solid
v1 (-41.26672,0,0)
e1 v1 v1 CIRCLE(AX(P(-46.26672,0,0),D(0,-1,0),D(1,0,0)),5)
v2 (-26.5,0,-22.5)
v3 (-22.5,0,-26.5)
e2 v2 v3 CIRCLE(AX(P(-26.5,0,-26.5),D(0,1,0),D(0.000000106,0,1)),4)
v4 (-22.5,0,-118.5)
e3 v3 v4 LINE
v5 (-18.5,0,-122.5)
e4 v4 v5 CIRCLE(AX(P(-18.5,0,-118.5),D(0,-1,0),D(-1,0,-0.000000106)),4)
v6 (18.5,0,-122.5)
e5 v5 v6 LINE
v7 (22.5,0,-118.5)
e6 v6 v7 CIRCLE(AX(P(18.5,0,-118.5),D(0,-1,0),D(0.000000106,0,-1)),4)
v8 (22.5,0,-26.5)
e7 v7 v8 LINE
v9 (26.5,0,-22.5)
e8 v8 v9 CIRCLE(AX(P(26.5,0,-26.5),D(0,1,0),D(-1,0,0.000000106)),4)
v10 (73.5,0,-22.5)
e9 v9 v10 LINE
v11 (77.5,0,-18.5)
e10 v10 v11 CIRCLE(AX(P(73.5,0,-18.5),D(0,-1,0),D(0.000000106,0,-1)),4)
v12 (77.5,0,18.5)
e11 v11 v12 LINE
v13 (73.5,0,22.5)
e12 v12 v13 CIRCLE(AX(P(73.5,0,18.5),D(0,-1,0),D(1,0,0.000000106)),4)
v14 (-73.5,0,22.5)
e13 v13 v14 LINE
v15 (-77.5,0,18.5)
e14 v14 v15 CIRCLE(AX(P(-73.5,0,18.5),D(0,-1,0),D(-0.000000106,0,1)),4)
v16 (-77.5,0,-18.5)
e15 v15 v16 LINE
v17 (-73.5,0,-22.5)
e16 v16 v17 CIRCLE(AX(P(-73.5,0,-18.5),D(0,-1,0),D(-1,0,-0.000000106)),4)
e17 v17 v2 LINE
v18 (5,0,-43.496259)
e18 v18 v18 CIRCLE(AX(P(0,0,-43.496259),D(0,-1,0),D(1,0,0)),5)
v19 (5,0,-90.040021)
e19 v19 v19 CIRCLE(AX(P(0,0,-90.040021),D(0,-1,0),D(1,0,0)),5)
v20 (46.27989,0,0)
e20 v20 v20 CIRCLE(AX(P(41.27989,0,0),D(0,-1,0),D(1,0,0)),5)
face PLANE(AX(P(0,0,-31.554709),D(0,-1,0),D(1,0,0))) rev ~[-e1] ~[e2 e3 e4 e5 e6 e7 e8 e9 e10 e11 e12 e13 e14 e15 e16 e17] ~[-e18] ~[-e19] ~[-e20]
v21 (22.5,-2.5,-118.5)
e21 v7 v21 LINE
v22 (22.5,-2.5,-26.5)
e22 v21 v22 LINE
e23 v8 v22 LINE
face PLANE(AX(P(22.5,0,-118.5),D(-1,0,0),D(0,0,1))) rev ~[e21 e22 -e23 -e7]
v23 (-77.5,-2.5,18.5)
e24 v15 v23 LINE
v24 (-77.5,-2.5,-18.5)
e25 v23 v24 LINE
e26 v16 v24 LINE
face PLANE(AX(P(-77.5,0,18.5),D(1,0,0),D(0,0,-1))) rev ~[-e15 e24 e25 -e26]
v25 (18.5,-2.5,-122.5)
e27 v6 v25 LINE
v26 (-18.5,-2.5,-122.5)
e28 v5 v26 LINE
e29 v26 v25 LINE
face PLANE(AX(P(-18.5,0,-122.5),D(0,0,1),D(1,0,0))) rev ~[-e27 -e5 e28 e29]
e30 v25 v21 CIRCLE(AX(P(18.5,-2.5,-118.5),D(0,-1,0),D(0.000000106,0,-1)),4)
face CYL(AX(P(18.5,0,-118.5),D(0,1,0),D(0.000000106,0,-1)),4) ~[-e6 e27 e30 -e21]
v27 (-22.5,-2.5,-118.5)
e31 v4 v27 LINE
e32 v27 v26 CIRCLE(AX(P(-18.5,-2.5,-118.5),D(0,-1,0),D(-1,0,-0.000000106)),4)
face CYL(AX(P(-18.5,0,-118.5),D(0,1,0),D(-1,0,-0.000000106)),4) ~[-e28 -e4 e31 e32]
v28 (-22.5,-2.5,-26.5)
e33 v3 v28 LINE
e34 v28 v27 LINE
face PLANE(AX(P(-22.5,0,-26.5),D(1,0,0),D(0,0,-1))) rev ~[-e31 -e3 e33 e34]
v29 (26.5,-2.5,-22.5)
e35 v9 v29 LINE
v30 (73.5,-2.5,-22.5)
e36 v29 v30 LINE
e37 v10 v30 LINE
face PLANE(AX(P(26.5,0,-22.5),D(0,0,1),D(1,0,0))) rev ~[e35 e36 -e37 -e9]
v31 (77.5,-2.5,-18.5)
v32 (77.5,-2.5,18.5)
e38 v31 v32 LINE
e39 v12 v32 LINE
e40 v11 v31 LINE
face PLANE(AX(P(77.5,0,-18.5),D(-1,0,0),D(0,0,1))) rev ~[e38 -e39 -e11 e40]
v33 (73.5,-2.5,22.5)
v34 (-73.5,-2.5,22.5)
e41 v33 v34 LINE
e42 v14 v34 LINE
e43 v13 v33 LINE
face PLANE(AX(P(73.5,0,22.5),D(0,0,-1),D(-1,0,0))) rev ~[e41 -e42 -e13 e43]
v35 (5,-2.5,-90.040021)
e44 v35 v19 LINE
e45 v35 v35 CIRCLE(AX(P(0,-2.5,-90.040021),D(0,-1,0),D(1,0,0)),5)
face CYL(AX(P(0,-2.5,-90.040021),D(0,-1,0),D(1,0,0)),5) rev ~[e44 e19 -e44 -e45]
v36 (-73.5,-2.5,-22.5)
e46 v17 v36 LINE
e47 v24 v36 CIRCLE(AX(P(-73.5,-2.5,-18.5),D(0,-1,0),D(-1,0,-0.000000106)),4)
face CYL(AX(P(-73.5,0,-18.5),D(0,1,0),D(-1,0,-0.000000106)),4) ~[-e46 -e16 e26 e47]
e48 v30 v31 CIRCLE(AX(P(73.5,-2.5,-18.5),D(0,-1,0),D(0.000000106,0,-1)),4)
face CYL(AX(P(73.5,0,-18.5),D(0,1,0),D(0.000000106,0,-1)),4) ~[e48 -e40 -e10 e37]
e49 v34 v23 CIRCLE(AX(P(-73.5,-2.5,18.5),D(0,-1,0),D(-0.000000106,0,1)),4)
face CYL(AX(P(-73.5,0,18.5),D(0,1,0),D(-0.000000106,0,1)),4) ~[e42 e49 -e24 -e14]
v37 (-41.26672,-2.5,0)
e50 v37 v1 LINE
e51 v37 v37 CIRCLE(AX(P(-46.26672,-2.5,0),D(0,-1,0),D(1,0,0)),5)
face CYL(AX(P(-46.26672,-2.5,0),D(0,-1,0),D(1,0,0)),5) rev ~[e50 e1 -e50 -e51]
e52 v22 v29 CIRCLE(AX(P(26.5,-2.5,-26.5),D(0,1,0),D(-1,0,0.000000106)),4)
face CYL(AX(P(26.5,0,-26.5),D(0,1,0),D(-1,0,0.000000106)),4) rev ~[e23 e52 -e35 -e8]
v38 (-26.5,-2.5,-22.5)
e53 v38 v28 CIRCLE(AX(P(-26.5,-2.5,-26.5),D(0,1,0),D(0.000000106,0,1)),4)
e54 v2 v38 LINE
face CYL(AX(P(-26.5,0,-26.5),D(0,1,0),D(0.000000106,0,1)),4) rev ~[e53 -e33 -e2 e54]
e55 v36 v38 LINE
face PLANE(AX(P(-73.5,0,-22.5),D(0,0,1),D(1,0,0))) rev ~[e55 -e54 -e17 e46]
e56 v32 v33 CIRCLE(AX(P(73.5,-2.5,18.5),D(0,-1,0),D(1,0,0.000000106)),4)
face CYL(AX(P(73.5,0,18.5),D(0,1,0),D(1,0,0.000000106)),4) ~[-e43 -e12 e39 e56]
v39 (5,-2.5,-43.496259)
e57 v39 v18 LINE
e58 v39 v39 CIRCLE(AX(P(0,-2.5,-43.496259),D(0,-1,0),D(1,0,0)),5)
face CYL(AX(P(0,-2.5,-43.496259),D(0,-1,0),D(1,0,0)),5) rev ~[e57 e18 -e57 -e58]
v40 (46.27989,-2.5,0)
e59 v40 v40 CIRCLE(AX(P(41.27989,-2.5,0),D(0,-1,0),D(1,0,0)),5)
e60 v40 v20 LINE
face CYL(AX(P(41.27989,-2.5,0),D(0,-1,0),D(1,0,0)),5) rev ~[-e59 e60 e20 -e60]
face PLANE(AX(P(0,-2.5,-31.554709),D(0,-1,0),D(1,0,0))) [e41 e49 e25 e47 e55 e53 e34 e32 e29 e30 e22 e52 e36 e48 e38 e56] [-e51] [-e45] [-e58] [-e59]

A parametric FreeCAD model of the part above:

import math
import FreeCAD as App
import Part
import Sketcher

V = App.Vector
Q = App.Units.Quantity

doc = App.newDocument("Part")
params = doc.addObject("Spreadsheet::Sheet", "Params")
for row, (alias, value) in enumerate([
    ("sketch1_radius", "4 mm"),
    ("sketch1_width", "147 mm"),
    ("sketch1_width2", "47 mm"),
    ("sketch1_height", "92 mm"),
    ("pad1_length", "2.5 mm"),
    ("sketch2_diameter", "10 mm"),
], start=1):
    params.set(f"A{row}", alias)
    params.set(f"B{row}", "=" + value)
    params.setAlias(f"B{row}", alias)

body = doc.addObject("PartDesign::Body", "Body")

sketch1 = body.newObject("Sketcher::SketchObject", "Sketch")
sketch1.AttachmentSupport = (doc.getObject("XZ_Plane"), [""])
sketch1.MapMode = "FlatFace"
sketch1.addGeometry([
    Part.ArcOfCircle(Part.Circle(V(73.5, 18.5, 0), V(0, 0, 1), 4), math.radians(0), math.radians(90)),
    Part.LineSegment(V(73.5, 22.5, 0), V(-73.5, 22.5, 0)),
    Part.ArcOfCircle(Part.Circle(V(-73.5, 18.5, 0), V(0, 0, 1), 4), math.radians(90), math.radians(180)),
    Part.LineSegment(V(-77.5, 18.5, 0), V(-77.5, -18.5, 0)),
    Part.ArcOfCircle(Part.Circle(V(-73.5, -18.5, 0), V(0, 0, 1), 4), math.radians(-180), math.radians(-90)),
    Part.LineSegment(V(-73.5, -22.5, 0), V(-26.5, -22.5, 0)),
    Part.ArcOfCircle(Part.Circle(V(-26.5, -26.5, 0), V(0, 0, 1), 4), math.radians(0), math.radians(90)),
    Part.LineSegment(V(-22.5, -26.5, 0), V(-22.5, -118.5, 0)),
    Part.ArcOfCircle(Part.Circle(V(-18.5, -118.5, 0), V(0, 0, 1), 4), math.radians(-180), math.radians(-90)),
    Part.LineSegment(V(-18.5, -122.5, 0), V(18.5, -122.5, 0)),
    Part.ArcOfCircle(Part.Circle(V(18.5, -118.5, 0), V(0, 0, 1), 4), math.radians(-90), math.radians(0)),
    Part.LineSegment(V(22.5, -118.5, 0), V(22.5, -26.5, 0)),
    Part.ArcOfCircle(Part.Circle(V(26.5, -26.5, 0), V(0, 0, 1), 4), math.radians(90), math.radians(180)),
    Part.LineSegment(V(26.5, -22.5, 0), V(73.5, -22.5, 0)),
    Part.ArcOfCircle(Part.Circle(V(73.5, -18.5, 0), V(0, 0, 1), 4), math.radians(-90), math.radians(0)),
    Part.LineSegment(V(77.5, -18.5, 0), V(77.5, 18.5, 0)),
], False)
sketch1.addConstraint([
    Sketcher.Constraint("Tangent", 0, 2, 1, 1),
    Sketcher.Constraint("Tangent", 1, 2, 2, 1),
    Sketcher.Constraint("Tangent", 2, 2, 3, 1),
    Sketcher.Constraint("Tangent", 3, 2, 4, 1),
    Sketcher.Constraint("Tangent", 4, 2, 5, 1),
    Sketcher.Constraint("Tangent", 5, 2, 6, 2),
    Sketcher.Constraint("Tangent", 6, 1, 7, 1),
    Sketcher.Constraint("Tangent", 7, 2, 8, 1),
    Sketcher.Constraint("Tangent", 8, 2, 9, 1),
    Sketcher.Constraint("Tangent", 9, 2, 10, 1),
    Sketcher.Constraint("Tangent", 10, 2, 11, 1),
    Sketcher.Constraint("Tangent", 11, 2, 12, 2),
    Sketcher.Constraint("Tangent", 12, 1, 13, 1),
    Sketcher.Constraint("Tangent", 13, 2, 14, 1),
    Sketcher.Constraint("Tangent", 14, 2, 15, 1),
    Sketcher.Constraint("Tangent", 15, 2, 0, 1),
    Sketcher.Constraint("Horizontal", 1),
    Sketcher.Constraint("Vertical", 3),
    Sketcher.Constraint("Horizontal", 5),
    Sketcher.Constraint("Vertical", 7),
    Sketcher.Constraint("Horizontal", 9),
    Sketcher.Constraint("Vertical", 11),
    Sketcher.Constraint("Horizontal", 13),
    Sketcher.Constraint("Vertical", 15),
    Sketcher.Constraint("Equal", 0, 2),
    Sketcher.Constraint("Equal", 2, 4),
    Sketcher.Constraint("Equal", 4, 6),
    Sketcher.Constraint("Equal", 6, 8),
    Sketcher.Constraint("Equal", 8, 10),
    Sketcher.Constraint("Equal", 10, 12),
    Sketcher.Constraint("Equal", 12, 14),
    Sketcher.Constraint("Symmetric", 0, 3, 4, 3, -1, 1),
    Sketcher.Constraint("Symmetric", 6, 3, 12, 3, -2),
    Sketcher.Constraint("Equal", 9, 3),
    Sketcher.Constraint("Radius", 0, Q("4 mm")),
    Sketcher.Constraint("DistanceX", 1, 2, 1, 1, Q("147 mm")),
    Sketcher.Constraint("DistanceX", 5, 1, 5, 2, Q("47 mm")),
    Sketcher.Constraint("DistanceY", 7, 2, 7, 1, Q("92 mm")),
])
sketch1.setExpression("Constraints[34]", "Params.sketch1_radius")
sketch1.setExpression("Constraints[35]", "Params.sketch1_width")
sketch1.setExpression("Constraints[36]", "Params.sketch1_width2")
sketch1.setExpression("Constraints[37]", "Params.sketch1_height")
pad1 = body.newObject("PartDesign::Pad", "Pad")
pad1.Profile = sketch1
pad1.setExpression("Length", "Params.pad1_length")

sketch2 = body.newObject("Sketcher::SketchObject", "Sketch001")
sketch2.AttachmentSupport = (doc.getObject("XZ_Plane"), [""])
sketch2.MapMode = "FlatFace"
sketch2.AttachmentOffset = App.Placement(V(0, 0, 2.5), App.Rotation())
sketch2.addGeometry([
    Part.Circle(V(-46, 0, 0), V(0, 0, 1), 5),
    Part.Circle(V(41, 0, 0), V(0, 0, 1), 5),
    Part.Circle(V(0, -43, 0), V(0, 0, 1), 5),
    Part.Circle(V(0, -90, 0), V(0, 0, 1), 5),
], False)
sketch2.addConstraint([
    Sketcher.Constraint("Equal", 0, 1),
    Sketcher.Constraint("Equal", 1, 2),
    Sketcher.Constraint("Equal", 2, 3),
    Sketcher.Constraint("PointOnObject", 0, 3, -1),
    Sketcher.Constraint("PointOnObject", 1, 3, -1),
    Sketcher.Constraint("PointOnObject", 2, 3, -2),
    Sketcher.Constraint("PointOnObject", 3, 3, -2),
    Sketcher.Constraint("Diameter", 0, Q("10 mm")),
    Sketcher.Constraint("DistanceX", 0, 3, -1, 1, Q("46.26672 mm")),
    Sketcher.Constraint("DistanceX", -1, 1, 1, 3, Q("41.27989 mm")),
    Sketcher.Constraint("DistanceY", 2, 3, -1, 1, Q("43.496259 mm")),
    Sketcher.Constraint("DistanceY", 3, 3, -1, 1, Q("90.040021 mm")),
])
sketch2.setExpression("Constraints[7]", "Params.sketch2_diameter")
pocket1 = body.newObject("PartDesign::Pocket", "Pocket")
pocket1.Profile = sketch2
pocket1.Type = "ThroughAll"

doc.recompute()
